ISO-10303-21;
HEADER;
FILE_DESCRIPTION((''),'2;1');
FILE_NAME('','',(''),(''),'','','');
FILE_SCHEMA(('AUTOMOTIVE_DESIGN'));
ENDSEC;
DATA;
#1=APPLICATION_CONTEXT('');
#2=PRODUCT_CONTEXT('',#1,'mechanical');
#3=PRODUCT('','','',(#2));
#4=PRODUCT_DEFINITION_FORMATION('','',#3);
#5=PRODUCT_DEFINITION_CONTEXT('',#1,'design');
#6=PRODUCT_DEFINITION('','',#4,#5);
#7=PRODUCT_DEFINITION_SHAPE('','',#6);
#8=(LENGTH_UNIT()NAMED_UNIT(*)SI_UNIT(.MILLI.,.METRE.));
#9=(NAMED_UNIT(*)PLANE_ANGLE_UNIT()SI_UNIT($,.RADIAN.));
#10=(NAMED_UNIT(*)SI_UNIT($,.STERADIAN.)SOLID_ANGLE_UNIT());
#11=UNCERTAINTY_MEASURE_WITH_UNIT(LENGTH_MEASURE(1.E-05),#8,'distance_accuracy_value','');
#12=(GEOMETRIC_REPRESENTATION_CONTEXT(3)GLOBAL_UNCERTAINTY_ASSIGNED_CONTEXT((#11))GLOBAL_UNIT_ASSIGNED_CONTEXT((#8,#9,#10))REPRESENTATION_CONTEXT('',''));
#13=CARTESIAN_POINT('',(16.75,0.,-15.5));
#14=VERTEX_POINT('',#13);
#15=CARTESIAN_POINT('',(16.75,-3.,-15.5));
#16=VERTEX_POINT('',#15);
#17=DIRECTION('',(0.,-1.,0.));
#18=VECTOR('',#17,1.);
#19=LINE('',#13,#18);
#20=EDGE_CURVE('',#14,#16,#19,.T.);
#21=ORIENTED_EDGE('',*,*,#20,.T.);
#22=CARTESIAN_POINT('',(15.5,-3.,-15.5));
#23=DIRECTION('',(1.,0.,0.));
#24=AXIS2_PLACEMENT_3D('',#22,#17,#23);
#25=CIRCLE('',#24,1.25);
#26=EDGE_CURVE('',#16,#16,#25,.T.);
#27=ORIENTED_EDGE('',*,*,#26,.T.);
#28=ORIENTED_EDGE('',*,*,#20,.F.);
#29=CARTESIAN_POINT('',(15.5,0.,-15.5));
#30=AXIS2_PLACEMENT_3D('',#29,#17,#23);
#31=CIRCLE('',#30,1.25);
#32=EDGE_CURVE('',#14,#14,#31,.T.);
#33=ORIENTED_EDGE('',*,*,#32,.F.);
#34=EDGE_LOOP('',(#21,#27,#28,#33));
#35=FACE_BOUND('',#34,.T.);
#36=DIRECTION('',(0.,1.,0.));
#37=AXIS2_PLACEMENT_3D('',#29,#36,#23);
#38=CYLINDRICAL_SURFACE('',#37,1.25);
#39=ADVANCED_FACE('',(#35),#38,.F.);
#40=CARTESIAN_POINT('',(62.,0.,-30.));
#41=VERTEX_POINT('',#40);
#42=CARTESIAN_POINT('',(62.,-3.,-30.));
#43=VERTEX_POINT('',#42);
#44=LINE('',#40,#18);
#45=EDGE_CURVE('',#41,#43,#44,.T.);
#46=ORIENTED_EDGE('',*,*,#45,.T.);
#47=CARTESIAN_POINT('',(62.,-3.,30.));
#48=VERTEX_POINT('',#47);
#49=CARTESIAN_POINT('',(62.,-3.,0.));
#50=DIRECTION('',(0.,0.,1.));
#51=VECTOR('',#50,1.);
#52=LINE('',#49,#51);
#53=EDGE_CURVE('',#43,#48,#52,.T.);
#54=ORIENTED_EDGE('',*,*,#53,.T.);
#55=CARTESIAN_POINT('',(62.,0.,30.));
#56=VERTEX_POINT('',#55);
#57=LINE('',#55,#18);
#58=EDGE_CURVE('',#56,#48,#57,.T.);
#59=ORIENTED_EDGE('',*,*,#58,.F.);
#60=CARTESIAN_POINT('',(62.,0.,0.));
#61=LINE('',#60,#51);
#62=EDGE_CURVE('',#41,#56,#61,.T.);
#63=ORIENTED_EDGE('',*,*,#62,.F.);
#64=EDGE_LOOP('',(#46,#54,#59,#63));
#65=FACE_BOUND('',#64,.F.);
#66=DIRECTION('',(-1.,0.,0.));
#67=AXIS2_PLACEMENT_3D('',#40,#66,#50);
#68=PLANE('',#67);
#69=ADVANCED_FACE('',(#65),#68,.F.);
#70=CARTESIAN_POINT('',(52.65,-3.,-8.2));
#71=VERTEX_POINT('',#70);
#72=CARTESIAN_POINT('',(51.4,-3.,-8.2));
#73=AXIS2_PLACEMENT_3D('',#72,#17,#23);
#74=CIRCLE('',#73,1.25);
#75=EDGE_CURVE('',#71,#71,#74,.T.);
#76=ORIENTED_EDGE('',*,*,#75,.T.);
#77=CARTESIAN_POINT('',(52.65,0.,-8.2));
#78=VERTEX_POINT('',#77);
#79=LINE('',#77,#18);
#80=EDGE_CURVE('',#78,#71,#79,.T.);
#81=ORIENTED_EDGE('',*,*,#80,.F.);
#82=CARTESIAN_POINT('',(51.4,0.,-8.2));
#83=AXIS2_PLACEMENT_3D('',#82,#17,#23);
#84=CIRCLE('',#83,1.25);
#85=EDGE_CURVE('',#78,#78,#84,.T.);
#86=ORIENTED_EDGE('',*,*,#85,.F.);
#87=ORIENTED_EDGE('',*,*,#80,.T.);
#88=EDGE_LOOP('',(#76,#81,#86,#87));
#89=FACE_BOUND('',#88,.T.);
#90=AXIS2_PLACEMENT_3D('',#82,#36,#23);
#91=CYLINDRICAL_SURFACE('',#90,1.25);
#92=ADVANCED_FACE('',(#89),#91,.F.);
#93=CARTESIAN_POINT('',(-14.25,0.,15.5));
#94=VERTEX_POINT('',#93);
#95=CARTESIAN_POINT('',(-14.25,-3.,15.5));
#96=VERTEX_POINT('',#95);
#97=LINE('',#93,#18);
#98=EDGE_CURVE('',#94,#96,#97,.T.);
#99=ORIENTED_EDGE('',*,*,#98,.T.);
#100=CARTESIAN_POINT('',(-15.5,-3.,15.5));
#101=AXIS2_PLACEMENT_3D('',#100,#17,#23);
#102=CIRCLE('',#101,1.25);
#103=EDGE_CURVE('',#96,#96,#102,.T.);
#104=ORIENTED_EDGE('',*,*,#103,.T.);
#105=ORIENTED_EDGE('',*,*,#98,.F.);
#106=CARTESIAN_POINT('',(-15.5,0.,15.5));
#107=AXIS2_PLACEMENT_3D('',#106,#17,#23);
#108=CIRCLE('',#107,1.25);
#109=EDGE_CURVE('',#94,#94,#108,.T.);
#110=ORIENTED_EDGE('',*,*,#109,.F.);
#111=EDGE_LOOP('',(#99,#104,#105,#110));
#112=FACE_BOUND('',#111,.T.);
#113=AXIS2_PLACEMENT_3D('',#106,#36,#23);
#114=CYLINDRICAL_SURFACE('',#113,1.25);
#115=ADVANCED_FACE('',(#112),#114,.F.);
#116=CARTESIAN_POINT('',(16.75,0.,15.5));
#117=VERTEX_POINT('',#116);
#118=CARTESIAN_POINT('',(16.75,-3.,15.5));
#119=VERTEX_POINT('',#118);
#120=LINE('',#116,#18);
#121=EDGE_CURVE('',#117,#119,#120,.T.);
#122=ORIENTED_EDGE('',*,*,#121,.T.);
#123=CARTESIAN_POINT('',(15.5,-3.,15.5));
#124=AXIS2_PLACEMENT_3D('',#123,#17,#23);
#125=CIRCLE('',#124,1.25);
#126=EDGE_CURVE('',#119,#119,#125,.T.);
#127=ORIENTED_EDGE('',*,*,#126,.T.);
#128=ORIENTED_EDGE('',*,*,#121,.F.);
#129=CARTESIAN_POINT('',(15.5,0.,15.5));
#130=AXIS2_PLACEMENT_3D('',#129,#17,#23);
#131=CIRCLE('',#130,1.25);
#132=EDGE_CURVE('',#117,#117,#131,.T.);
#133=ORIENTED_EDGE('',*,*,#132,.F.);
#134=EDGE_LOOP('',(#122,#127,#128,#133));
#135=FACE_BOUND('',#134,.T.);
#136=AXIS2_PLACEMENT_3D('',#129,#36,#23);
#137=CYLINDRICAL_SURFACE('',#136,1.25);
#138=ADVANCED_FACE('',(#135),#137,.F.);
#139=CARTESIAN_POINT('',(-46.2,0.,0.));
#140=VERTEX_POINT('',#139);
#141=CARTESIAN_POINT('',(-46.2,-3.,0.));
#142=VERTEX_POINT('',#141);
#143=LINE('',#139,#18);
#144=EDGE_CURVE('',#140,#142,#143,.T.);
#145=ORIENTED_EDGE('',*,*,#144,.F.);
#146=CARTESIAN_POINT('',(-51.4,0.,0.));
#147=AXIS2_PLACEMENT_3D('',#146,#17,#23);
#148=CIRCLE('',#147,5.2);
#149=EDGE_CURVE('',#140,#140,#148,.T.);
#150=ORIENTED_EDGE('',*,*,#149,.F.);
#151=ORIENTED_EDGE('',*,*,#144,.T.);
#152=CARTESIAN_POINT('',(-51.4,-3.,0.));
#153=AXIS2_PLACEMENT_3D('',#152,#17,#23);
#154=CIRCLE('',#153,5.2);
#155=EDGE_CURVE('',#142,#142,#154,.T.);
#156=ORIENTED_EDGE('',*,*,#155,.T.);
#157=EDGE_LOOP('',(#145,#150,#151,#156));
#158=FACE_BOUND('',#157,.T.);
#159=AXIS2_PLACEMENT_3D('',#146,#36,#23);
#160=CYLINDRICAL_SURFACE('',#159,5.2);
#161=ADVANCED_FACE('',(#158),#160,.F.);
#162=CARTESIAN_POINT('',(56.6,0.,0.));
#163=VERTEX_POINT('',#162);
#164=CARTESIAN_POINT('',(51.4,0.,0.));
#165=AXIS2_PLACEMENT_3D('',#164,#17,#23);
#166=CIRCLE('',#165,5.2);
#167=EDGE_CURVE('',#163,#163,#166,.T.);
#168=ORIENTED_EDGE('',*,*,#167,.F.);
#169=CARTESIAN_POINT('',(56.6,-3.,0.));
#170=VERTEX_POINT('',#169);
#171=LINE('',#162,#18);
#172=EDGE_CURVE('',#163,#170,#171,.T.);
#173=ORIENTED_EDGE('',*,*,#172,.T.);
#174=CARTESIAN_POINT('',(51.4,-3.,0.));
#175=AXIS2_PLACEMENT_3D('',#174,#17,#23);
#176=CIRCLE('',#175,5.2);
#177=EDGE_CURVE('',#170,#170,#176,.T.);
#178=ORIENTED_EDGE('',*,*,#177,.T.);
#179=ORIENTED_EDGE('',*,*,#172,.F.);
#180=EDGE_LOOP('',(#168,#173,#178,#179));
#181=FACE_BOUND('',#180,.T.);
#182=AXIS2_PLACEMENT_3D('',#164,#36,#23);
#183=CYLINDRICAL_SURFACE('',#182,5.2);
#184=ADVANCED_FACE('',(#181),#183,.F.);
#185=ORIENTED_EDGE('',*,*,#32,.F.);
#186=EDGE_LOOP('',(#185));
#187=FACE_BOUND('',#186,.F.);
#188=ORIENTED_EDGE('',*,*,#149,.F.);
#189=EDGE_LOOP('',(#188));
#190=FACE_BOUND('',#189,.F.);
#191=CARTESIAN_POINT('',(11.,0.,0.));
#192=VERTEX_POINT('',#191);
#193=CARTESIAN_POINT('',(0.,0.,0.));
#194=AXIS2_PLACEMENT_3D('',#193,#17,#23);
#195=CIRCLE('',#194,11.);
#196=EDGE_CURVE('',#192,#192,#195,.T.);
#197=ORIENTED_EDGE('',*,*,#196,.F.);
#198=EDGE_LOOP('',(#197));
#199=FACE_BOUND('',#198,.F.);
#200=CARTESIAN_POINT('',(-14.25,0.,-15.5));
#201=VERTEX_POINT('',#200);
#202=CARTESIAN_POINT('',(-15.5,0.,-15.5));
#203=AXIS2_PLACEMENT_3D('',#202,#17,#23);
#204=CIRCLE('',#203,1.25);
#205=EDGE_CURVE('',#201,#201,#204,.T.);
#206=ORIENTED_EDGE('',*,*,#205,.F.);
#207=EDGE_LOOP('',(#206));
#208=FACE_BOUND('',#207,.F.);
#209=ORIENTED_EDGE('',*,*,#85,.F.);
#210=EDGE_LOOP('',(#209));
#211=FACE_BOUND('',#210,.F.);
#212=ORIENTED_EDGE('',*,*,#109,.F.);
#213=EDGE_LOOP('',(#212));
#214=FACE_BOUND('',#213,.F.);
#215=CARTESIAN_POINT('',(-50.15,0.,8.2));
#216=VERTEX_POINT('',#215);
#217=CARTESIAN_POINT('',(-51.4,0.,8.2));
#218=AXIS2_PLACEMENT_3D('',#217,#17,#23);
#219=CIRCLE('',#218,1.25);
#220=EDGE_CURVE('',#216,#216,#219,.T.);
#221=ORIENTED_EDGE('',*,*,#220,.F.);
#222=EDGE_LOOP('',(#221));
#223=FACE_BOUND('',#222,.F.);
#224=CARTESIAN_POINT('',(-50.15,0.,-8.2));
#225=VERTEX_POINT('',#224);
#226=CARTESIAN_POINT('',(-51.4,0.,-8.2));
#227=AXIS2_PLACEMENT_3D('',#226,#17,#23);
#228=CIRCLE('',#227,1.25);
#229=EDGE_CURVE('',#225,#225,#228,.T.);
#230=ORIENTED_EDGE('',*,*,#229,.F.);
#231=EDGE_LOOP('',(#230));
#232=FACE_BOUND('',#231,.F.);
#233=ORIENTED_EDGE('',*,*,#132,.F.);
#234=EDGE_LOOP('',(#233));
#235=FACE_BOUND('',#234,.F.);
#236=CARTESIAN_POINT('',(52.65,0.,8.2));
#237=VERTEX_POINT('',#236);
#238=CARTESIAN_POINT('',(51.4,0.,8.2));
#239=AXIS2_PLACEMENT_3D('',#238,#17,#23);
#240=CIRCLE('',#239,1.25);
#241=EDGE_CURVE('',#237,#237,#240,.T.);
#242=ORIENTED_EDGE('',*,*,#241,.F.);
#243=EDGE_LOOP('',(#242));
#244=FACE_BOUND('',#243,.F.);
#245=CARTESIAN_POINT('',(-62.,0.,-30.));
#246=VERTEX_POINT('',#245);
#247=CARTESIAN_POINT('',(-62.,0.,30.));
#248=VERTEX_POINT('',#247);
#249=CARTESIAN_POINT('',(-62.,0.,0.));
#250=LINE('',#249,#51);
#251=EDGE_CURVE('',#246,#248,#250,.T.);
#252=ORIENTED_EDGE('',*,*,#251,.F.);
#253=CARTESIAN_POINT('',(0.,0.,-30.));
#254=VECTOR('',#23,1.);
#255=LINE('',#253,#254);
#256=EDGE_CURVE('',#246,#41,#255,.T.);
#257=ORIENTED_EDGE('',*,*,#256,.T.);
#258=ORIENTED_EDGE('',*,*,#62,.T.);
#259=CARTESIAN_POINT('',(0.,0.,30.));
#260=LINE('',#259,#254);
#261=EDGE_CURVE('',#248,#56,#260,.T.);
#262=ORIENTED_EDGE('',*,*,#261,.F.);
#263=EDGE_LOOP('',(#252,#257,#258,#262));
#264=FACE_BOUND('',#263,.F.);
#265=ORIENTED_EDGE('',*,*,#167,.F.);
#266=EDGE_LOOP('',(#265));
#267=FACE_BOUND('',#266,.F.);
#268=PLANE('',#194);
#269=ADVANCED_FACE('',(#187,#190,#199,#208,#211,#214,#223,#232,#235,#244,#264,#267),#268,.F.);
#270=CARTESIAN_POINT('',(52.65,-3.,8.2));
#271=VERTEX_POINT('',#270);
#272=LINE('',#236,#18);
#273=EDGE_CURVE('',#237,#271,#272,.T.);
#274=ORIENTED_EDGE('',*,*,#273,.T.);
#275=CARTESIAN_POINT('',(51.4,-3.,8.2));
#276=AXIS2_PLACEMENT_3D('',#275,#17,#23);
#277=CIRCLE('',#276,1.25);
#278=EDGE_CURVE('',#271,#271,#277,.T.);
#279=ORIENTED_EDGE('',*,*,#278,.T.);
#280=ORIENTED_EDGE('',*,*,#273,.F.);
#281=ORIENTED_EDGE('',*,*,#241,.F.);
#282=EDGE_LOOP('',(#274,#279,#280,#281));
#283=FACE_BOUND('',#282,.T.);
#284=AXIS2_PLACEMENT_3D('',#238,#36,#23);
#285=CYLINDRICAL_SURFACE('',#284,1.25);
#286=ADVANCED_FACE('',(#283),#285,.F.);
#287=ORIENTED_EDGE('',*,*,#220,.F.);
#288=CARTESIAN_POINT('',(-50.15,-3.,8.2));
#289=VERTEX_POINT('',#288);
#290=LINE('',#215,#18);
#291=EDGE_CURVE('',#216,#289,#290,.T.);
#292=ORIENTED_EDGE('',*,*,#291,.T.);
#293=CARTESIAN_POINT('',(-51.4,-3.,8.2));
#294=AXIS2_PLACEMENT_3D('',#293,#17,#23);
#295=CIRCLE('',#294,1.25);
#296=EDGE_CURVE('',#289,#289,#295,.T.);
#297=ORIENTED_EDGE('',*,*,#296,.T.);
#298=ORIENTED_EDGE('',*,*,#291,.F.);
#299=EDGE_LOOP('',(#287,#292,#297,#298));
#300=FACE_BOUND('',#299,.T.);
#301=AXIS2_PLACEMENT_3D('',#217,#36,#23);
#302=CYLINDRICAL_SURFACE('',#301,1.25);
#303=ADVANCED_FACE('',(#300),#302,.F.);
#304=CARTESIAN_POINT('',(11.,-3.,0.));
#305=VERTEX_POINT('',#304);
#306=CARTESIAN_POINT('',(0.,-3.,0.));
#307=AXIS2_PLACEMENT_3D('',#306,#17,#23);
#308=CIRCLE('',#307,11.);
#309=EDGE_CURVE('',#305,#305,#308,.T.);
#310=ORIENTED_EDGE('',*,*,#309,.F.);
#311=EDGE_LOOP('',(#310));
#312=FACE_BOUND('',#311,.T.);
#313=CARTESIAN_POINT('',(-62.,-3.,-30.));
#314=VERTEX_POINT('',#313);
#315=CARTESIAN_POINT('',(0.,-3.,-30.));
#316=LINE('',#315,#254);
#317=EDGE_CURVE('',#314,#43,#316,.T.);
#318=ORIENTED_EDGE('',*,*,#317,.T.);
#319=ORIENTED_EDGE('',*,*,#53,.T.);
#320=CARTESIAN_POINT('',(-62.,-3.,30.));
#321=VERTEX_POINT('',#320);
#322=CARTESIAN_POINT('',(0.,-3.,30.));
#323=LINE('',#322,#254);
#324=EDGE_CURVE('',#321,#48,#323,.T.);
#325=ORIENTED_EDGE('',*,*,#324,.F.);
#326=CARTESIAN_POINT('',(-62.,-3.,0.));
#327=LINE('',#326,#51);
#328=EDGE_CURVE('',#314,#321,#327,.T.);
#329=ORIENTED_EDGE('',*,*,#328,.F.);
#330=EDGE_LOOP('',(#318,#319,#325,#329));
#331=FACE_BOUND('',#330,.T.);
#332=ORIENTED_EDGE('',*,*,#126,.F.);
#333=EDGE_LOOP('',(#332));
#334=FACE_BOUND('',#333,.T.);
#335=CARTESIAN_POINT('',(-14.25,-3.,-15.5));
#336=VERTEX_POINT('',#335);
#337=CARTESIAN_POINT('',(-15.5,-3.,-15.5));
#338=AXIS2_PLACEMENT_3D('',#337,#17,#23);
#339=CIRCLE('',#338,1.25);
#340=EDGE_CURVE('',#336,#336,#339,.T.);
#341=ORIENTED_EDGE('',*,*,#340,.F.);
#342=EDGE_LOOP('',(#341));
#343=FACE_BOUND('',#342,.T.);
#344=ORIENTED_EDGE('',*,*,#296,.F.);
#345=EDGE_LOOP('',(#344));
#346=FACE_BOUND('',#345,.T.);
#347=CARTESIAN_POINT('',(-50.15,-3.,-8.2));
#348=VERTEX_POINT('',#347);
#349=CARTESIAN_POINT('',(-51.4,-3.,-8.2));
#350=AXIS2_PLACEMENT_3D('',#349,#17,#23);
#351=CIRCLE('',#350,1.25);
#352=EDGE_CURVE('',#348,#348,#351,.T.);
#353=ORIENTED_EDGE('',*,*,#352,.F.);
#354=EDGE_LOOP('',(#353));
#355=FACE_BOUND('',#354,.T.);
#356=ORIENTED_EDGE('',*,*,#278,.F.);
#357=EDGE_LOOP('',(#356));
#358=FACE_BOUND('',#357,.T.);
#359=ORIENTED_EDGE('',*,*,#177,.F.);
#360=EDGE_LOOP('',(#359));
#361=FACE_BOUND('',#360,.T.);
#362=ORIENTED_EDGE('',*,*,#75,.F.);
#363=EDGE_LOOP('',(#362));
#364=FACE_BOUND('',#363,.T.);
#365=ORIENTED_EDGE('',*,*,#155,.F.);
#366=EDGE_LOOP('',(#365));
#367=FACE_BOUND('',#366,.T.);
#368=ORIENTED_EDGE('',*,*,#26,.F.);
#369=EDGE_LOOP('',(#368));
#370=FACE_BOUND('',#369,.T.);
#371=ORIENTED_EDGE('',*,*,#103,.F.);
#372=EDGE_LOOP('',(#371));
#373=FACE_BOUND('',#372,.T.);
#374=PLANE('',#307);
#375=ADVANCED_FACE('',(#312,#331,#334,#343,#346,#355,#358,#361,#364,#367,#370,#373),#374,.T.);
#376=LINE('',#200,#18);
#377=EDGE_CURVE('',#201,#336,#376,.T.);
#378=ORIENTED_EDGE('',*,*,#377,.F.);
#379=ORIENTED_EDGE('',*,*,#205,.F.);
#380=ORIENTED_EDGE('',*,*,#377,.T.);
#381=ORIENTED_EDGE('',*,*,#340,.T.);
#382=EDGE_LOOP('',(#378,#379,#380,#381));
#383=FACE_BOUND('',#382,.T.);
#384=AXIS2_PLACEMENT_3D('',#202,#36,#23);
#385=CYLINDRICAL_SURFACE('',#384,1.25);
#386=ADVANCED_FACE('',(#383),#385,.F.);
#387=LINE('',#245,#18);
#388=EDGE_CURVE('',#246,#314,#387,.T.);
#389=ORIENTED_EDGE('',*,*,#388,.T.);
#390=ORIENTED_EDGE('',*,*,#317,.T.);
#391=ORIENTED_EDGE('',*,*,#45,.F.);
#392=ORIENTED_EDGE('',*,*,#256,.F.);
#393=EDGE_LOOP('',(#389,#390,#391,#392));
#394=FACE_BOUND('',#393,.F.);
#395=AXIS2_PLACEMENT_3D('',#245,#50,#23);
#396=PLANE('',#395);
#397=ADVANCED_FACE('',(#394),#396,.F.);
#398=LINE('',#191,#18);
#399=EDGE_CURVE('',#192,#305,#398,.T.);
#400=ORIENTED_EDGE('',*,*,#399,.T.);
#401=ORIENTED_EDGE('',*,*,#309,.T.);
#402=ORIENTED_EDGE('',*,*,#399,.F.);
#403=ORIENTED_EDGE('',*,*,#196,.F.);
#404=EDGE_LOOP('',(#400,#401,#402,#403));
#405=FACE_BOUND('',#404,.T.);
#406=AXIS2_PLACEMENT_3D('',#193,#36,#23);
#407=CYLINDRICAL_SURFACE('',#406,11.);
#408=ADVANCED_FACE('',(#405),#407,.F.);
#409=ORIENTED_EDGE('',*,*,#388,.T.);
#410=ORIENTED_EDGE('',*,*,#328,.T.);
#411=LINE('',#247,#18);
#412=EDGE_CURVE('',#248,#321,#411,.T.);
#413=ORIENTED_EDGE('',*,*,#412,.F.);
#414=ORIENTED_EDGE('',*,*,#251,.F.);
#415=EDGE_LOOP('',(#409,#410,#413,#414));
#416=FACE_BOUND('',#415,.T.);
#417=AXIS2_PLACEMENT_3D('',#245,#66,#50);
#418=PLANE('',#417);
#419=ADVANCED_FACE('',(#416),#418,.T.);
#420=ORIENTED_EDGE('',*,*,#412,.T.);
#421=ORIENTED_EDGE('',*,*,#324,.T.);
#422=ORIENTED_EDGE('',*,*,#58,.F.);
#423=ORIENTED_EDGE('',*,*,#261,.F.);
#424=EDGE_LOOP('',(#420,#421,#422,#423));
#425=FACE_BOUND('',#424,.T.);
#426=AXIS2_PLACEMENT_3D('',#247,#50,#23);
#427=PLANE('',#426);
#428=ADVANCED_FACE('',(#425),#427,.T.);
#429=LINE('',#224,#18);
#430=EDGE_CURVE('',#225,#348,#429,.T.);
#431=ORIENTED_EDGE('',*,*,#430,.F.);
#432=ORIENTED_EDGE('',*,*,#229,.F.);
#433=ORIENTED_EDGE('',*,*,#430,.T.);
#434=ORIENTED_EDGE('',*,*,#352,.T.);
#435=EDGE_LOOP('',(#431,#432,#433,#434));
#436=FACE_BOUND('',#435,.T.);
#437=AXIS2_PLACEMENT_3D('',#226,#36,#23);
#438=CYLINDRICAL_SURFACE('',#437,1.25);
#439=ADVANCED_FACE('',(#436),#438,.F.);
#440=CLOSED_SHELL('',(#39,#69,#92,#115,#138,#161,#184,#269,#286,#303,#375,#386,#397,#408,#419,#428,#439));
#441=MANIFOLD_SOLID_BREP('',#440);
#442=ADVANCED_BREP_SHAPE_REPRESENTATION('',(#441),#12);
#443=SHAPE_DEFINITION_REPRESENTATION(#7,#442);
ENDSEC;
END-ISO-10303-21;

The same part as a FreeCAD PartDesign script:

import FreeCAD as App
import Part
import Sketcher
from FreeCAD import Vector
Q = App.Units.Quantity

doc = App.newDocument("Part")
body = doc.addObject("PartDesign::Body", "Body")

sketch1 = body.newObject("Sketcher::SketchObject", "Sketch")
sketch1.AttachmentSupport = (doc.getObject("XZ_Plane"), [""])
sketch1.MapMode = "FlatFace"
sketch1.addGeometry(Part.LineSegment(Vector(-62, 30, 0), Vector(-62, -30, 0)), False)
sketch1.addGeometry(Part.LineSegment(Vector(-62, -30, 0), Vector(62, -30, 0)), False)
sketch1.addGeometry(Part.LineSegment(Vector(62, -30, 0), Vector(62, 30, 0)), False)
sketch1.addGeometry(Part.LineSegment(Vector(62, 30, 0), Vector(-62, 30, 0)), False)
sketch1.addGeometry(Part.Circle(Vector(-15.5, -15.5, 0), Vector(0, 0, 1), 1.2), False)
sketch1.addGeometry(Part.Circle(Vector(-51.4, -8.2, 0), Vector(0, 0, 1), 1.2), False)
sketch1.addGeometry(Part.Circle(Vector(15.5, -15.5, 0), Vector(0, 0, 1), 1.2), False)
sketch1.addGeometry(Part.Circle(Vector(51.4, -8.2, 0), Vector(0, 0, 1), 1.2), False)
sketch1.addGeometry(Part.Circle(Vector(-51.4, 0, 0), Vector(0, 0, 1), 5.2), False)
sketch1.addGeometry(Part.Circle(Vector(-51.4, 8.2, 0), Vector(0, 0, 1), 1.2), False)
sketch1.addGeometry(Part.Circle(Vector(-15.5, 15.5, 0), Vector(0, 0, 1), 1.2), False)
sketch1.addGeometry(Part.Circle(Vector(0, 0, 0), Vector(0, 0, 1), 11), False)
sketch1.addGeometry(Part.Circle(Vector(51.4, 0, 0), Vector(0, 0, 1), 5.2), False)
sketch1.addGeometry(Part.Circle(Vector(51.4, 8.2, 0), Vector(0, 0, 1), 1.2), False)
sketch1.addGeometry(Part.Circle(Vector(15.5, 15.5, 0), Vector(0, 0, 1), 1.2), False)
sketch1.addConstraint(Sketcher.Constraint("Coincident", 0, 2, 1, 1))
sketch1.addConstraint(Sketcher.Constraint("Coincident", 1, 2, 2, 1))
sketch1.addConstraint(Sketcher.Constraint("Coincident", 2, 2, 3, 1))
sketch1.addConstraint(Sketcher.Constraint("Coincident", 3, 2, 0, 1))
sketch1.addConstraint(Sketcher.Constraint("Vertical", 0))
sketch1.addConstraint(Sketcher.Constraint("Horizontal", 1))
sketch1.addConstraint(Sketcher.Constraint("Vertical", 2))
sketch1.addConstraint(Sketcher.Constraint("Horizontal", 3))
sketch1.addConstraint(Sketcher.Constraint("Coincident", 11, 3, -1, 1))
sketch1.addConstraint(Sketcher.Constraint("Equal", 4, 5))
sketch1.addConstraint(Sketcher.Constraint("Equal", 5, 6))
sketch1.addConstraint(Sketcher.Constraint("Equal", 6, 7))
sketch1.addConstraint(Sketcher.Constraint("Equal", 7, 9))
sketch1.addConstraint(Sketcher.Constraint("Equal", 9, 10))
sketch1.addConstraint(Sketcher.Constraint("Equal", 8, 12))
sketch1.addConstraint(Sketcher.Constraint("Equal", 10, 13))
sketch1.addConstraint(Sketcher.Constraint("Equal", 13, 14))
sketch1.addConstraint(Sketcher.Constraint("Symmetric", 7, 3, 9, 3, -1, 1))
sketch1.addConstraint(Sketcher.Constraint("Symmetric", 6, 3, 10, 3, -1, 1))
sketch1.addConstraint(Sketcher.Constraint("Symmetric", 8, 3, 12, 3, -1, 1))
sketch1.addConstraint(Sketcher.Constraint("Symmetric", 5, 3, 13, 3, -1, 1))
sketch1.addConstraint(Sketcher.Constraint("Symmetric", 4, 3, 14, 3, -1, 1))
sketch1.addConstraint(Sketcher.Constraint("Symmetric", 0, 2, 2, 2, -1, 1))
sketch1.addConstraint(Sketcher.Constraint("Symmetric", 4, 3, 6, 3, -2))
sketch1.addConstraint(Sketcher.Constraint("Symmetric", 5, 3, 7, 3, -2))
sketch1.addConstraint(Sketcher.Constraint("PointOnObject", 8, 3, -1))
sketch1.addConstraint(Sketcher.Constraint("Vertical", 5, 3, 8, 3))
sketch1.addConstraint(Sketcher.Constraint("Diameter", 11, Q("22 mm")))
sketch1.addConstraint(Sketcher.Constraint("Diameter", 4, Q("2.5 mm")))
sketch1.addConstraint(Sketcher.Constraint("Diameter", 8, Q("10.4 mm")))
sketch1.addConstraint(Sketcher.Constraint("DistanceX", 1, 1, 1, 2, Q("124 mm")))
sketch1.addConstraint(Sketcher.Constraint("DistanceY", 0, 2, 0, 1, Q("60 mm")))
sketch1.addConstraint(Sketcher.Constraint("DistanceX", 4, 3, 6, 3, Q("31 mm")))
sketch1.addConstraint(Sketcher.Constraint("DistanceY", 4, 3, 10, 3, Q("31 mm")))
sketch1.addConstraint(Sketcher.Constraint("DistanceX", 5, 3, -1, 1, Q("51.4 mm")))
sketch1.addConstraint(Sketcher.Constraint("DistanceY", 5, 3, -1, 1, Q("8.2 mm")))
pad1 = body.newObject("PartDesign::Pad", "Pad")
pad1.Profile = sketch1
pad1.Length = 3

doc.recompute()
